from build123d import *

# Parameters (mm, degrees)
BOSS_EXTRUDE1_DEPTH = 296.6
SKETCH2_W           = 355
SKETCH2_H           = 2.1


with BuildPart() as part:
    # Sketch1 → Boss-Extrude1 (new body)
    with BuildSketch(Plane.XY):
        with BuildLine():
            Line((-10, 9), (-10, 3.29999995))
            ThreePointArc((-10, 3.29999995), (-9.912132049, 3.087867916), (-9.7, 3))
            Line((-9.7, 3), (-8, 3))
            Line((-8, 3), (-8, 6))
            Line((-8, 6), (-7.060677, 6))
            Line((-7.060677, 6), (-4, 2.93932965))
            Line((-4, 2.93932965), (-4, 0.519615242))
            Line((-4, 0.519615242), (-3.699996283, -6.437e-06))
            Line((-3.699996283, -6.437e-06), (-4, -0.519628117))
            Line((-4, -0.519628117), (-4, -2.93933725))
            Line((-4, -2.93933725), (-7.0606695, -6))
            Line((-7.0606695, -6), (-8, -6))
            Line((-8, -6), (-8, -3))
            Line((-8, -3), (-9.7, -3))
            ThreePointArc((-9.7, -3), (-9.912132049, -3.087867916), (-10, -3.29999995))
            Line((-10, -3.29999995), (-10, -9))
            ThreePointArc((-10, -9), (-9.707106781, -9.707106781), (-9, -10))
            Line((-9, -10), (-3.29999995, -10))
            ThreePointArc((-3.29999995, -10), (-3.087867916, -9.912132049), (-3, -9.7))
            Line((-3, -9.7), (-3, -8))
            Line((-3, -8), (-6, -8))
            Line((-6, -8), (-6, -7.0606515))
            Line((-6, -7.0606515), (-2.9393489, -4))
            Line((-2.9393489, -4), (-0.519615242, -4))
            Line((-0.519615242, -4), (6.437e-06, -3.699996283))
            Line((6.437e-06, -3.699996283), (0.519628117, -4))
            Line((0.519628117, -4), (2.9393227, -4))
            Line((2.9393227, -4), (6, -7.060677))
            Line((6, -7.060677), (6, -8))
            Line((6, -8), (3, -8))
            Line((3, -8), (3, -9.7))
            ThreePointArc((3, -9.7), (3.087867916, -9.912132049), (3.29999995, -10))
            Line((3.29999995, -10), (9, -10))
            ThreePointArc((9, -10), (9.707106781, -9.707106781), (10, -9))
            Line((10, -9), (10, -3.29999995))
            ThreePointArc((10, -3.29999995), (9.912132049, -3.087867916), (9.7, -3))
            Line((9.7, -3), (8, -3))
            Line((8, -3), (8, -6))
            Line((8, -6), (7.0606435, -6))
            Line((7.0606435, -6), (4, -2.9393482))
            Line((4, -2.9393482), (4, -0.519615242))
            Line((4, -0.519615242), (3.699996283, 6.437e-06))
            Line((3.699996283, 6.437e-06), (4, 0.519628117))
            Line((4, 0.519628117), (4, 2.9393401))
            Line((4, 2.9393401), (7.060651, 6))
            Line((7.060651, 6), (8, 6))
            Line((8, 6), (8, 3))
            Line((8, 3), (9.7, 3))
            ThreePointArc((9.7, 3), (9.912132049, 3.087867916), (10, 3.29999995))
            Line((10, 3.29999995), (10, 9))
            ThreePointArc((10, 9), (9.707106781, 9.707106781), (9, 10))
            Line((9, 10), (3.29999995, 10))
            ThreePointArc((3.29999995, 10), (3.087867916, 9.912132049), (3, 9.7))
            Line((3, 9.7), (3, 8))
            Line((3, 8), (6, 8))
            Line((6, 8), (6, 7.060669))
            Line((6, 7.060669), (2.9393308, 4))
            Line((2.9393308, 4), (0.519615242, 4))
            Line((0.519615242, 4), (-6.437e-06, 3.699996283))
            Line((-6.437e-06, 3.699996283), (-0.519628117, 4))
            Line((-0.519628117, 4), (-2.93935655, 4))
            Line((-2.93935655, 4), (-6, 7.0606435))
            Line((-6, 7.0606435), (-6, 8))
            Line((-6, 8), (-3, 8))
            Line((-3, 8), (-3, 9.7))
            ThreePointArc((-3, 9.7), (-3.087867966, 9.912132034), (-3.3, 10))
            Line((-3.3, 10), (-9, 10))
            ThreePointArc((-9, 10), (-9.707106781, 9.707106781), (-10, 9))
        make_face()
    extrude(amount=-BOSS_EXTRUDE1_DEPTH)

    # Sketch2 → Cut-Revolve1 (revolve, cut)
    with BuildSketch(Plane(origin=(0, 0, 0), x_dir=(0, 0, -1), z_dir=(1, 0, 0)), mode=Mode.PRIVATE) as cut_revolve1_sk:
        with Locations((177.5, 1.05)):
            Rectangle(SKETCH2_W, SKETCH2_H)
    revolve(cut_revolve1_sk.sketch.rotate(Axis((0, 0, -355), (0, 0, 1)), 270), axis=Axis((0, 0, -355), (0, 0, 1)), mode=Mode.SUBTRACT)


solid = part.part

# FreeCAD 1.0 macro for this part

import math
import FreeCAD as App
import Part
import Sketcher
from FreeCAD import Vector
Q = App.Units.Quantity


def add_polygon(sketch, points):
    """Adds a closed chain of lines whose ends are joined by coincident constraints."""
    first, n = sketch.GeometryCount, len(points)
    for a, b in zip(points, points[1:] + points[:1]):
        sketch.addGeometry(Part.LineSegment(App.Vector(*a, 0), App.Vector(*b, 0)), False)
    for i in range(n):
        sketch.addConstraint(Sketcher.Constraint("Coincident", first + i, 2, first + (i + 1) % n, 1))

doc = App.newDocument("Part")
params = doc.addObject("Spreadsheet::Sheet", "Params")
for row, (alias, value) in enumerate([
    ("sketch1_radius", "1 mm"),
    ("sketch1_radius2", "0.3 mm"),
    ("sketch1_width", "3 mm"),
    ("sketch1_width2", "1.7 mm"),
    ("sketch1_width3", "5.7 mm"),
    ("pad1_length", "296.6 mm"),
    ("sketch2_height", "355 mm"),
    ("sketch2_width", "2.1 mm"),
    ("groove_angle", "360 deg"),
], start=1):
    params.set(f"A{row}", alias)
    params.set(f"B{row}", "=" + value)
    params.setAlias(f"B{row}", alias)

body = doc.addObject("PartDesign::Body", "Body")

sketch1 = body.newObject("Sketcher::SketchObject", "Sketch")
sketch1.AttachmentSupport = (doc.getObject("XY_Plane"), [""])
sketch1.MapMode = "FlatFace"
sketch1.addGeometry([
    Part.LineSegment(Vector(-10, 9, 0), Vector(-10, 3.3, 0)),
    Part.ArcOfCircle(Part.Circle(Vector(-9.7, 3.3, 0), Vector(0, 0, 1), 0.3), math.radians(180), math.radians(270)),
    Part.LineSegment(Vector(-9.7, 3, 0), Vector(-8, 3, 0)),
    Part.LineSegment(Vector(-8, 3, 0), Vector(-8, 6, 0)),
    Part.LineSegment(Vector(-8, 6, 0), Vector(-7.06, 6, 0)),
    Part.LineSegment(Vector(-7.06, 6, 0), Vector(-4, 2.94, 0)),
    Part.LineSegment(Vector(-4, 2.94, 0), Vector(-4, 0.52, 0)),
    Part.LineSegment(Vector(-4, 0.52, 0), Vector(-3.7, 0, 0)),
    Part.LineSegment(Vector(-3.7, 0, 0), Vector(-4, -0.52, 0)),
    Part.LineSegment(Vector(-4, -0.52, 0), Vector(-4, -2.94, 0)),
    Part.LineSegment(Vector(-4, -2.94, 0), Vector(-7.06, -6, 0)),
    Part.LineSegment(Vector(-7.06, -6, 0), Vector(-8, -6, 0)),
    Part.LineSegment(Vector(-8, -6, 0), Vector(-8, -3, 0)),
    Part.LineSegment(Vector(-8, -3, 0), Vector(-9.7, -3, 0)),
    Part.ArcOfCircle(Part.Circle(Vector(-9.7, -3.3, 0), Vector(0, 0, 1), 0.3), math.radians(90), math.radians(180)),
    Part.LineSegment(Vector(-10, -3.3, 0), Vector(-10, -9, 0)),
    Part.ArcOfCircle(Part.Circle(Vector(-9, -9, 0), Vector(0, 0, 1), 1), math.radians(-180), math.radians(-90)),
    Part.LineSegment(Vector(-9, -10, 0), Vector(-3.3, -10, 0)),
    Part.ArcOfCircle(Part.Circle(Vector(-3.3, -9.7, 0), Vector(0, 0, 1), 0.3), math.radians(-90), math.radians(0)),
    Part.LineSegment(Vector(-3, -9.7, 0), Vector(-3, -8, 0)),
    Part.LineSegment(Vector(-3, -8, 0), Vector(-6, -8, 0)),
    Part.LineSegment(Vector(-6, -8, 0), Vector(-6, -7.06, 0)),
    Part.LineSegment(Vector(-6, -7.06, 0), Vector(-2.94, -4, 0)),
    Part.LineSegment(Vector(-2.94, -4, 0), Vector(-0.52, -4, 0)),
    Part.LineSegment(Vector(-0.52, -4, 0), Vector(0, -3.7, 0)),
    Part.LineSegment(Vector(0, -3.7, 0), Vector(0.52, -4, 0)),
    Part.LineSegment(Vector(0.52, -4, 0), Vector(2.94, -4, 0)),
    Part.LineSegment(Vector(2.94, -4, 0), Vector(6, -7.06, 0)),
    Part.LineSegment(Vector(6, -7.06, 0), Vector(6, -8, 0)),
    Part.LineSegment(Vector(6, -8, 0), Vector(3, -8, 0)),
    Part.LineSegment(Vector(3, -8, 0), Vector(3, -9.7, 0)),
    Part.ArcOfCircle(Part.Circle(Vector(3.3, -9.7, 0), Vector(0, 0, 1), 0.3), math.radians(180), math.radians(270)),
    Part.LineSegment(Vector(3.3, -10, 0), Vector(9, -10, 0)),
    Part.ArcOfCircle(Part.Circle(Vector(9, -9, 0), Vector(0, 0, 1), 1), math.radians(-90), math.radians(0)),
    Part.LineSegment(Vector(10, -9, 0), Vector(10, -3.3, 0)),
    Part.ArcOfCircle(Part.Circle(Vector(9.7, -3.3, 0), Vector(0, 0, 1), 0.3), math.radians(0), math.radians(90)),
    Part.LineSegment(Vector(9.7, -3, 0), Vector(8, -3, 0)),
    Part.LineSegment(Vector(8, -3, 0), Vector(8, -6, 0)),
    Part.LineSegment(Vector(8, -6, 0), Vector(7.06, -6, 0)),
    Part.LineSegment(Vector(7.06, -6, 0), Vector(4, -2.94, 0)),
    Part.LineSegment(Vector(4, -2.94, 0), Vector(4, -0.52, 0)),
    Part.LineSegment(Vector(4, -0.52, 0), Vector(3.7, 0, 0)),
    Part.LineSegment(Vector(3.7, 0, 0), Vector(4, 0.52, 0)),
    Part.LineSegment(Vector(4, 0.52, 0), Vector(4, 2.94, 0)),
    Part.LineSegment(Vector(4, 2.94, 0), Vector(7.06, 6, 0)),
    Part.LineSegment(Vector(7.06, 6, 0), Vector(8, 6, 0)),
    Part.LineSegment(Vector(8, 6, 0), Vector(8, 3, 0)),
    Part.LineSegment(Vector(8, 3, 0), Vector(9.7, 3, 0)),
    Part.ArcOfCircle(Part.Circle(Vector(9.7, 3.3, 0), Vector(0, 0, 1), 0.3), math.radians(-90), math.radians(0)),
    Part.LineSegment(Vector(10, 3.3, 0), Vector(10, 9, 0)),
    Part.ArcOfCircle(Part.Circle(Vector(9, 9, 0), Vector(0, 0, 1), 1), math.radians(0), math.radians(90)),
    Part.LineSegment(Vector(9, 10, 0), Vector(3.3, 10, 0)),
    Part.ArcOfCircle(Part.Circle(Vector(3.3, 9.7, 0), Vector(0, 0, 1), 0.3), math.radians(90), math.radians(180)),
    Part.LineSegment(Vector(3, 9.7, 0), Vector(3, 8, 0)),
    Part.LineSegment(Vector(3, 8, 0), Vector(6, 8, 0)),
    Part.LineSegment(Vector(6, 8, 0), Vector(6, 7.06, 0)),
    Part.LineSegment(Vector(6, 7.06, 0), Vector(2.94, 4, 0)),
    Part.LineSegment(Vector(2.94, 4, 0), Vector(0.52, 4, 0)),
    Part.LineSegment(Vector(0.52, 4, 0), Vector(0, 3.7, 0)),
    Part.LineSegment(Vector(0, 3.7, 0), Vector(-0.52, 4, 0)),
    Part.LineSegment(Vector(-0.52, 4, 0), Vector(-2.94, 4, 0)),
    Part.LineSegment(Vector(-2.94, 4, 0), Vector(-6, 7.06, 0)),
    Part.LineSegment(Vector(-6, 7.06, 0), Vector(-6, 8, 0)),
    Part.LineSegment(Vector(-6, 8, 0), Vector(-3, 8, 0)),
    Part.LineSegment(Vector(-3, 8, 0), Vector(-3, 9.7, 0)),
    Part.ArcOfCircle(Part.Circle(Vector(-3.3, 9.7, 0), Vector(0, 0, 1), 0.3), math.radians(0), math.radians(90)),
    Part.LineSegment(Vector(-3.3, 10, 0), Vector(-9, 10, 0)),
    Part.ArcOfCircle(Part.Circle(Vector(-9, 9, 0), Vector(0, 0, 1), 1), math.radians(90), math.radians(180)),
], False)
sketch1.addConstraint([
    Sketcher.Constraint("Tangent", 0, 2, 1, 1),
    Sketcher.Constraint("Tangent", 1, 2, 2, 1),
    Sketcher.Constraint("Coincident", 2, 2, 3, 1),
    Sketcher.Constraint("Coincident", 3, 2, 4, 1),
    Sketcher.Constraint("Coincident", 4, 2, 5, 1),
    Sketcher.Constraint("Coincident", 5, 2, 6, 1),
    Sketcher.Constraint("Coincident", 6, 2, 7, 1),
    Sketcher.Constraint("Coincident", 7, 2, 8, 1),
    Sketcher.Constraint("Coincident", 8, 2, 9, 1),
    Sketcher.Constraint("Coincident", 9, 2, 10, 1),
    Sketcher.Constraint("Coincident", 10, 2, 11, 1),
    Sketcher.Constraint("Coincident", 11, 2, 12, 1),
    Sketcher.Constraint("Coincident", 12, 2, 13, 1),
    Sketcher.Constraint("Tangent", 13, 2, 14, 1),
    Sketcher.Constraint("Tangent", 14, 2, 15, 1),
    Sketcher.Constraint("Tangent", 15, 2, 16, 1),
    Sketcher.Constraint("Tangent", 16, 2, 17, 1),
    Sketcher.Constraint("Tangent", 17, 2, 18, 1),
    Sketcher.Constraint("Tangent", 18, 2, 19, 1),
    Sketcher.Constraint("Coincident", 19, 2, 20, 1),
    Sketcher.Constraint("Coincident", 20, 2, 21, 1),
    Sketcher.Constraint("Coincident", 21, 2, 22, 1),
    Sketcher.Constraint("Coincident", 22, 2, 23, 1),
    Sketcher.Constraint("Coincident", 23, 2, 24, 1),
    Sketcher.Constraint("Coincident", 24, 2, 25, 1),
    Sketcher.Constraint("Coincident", 25, 2, 26, 1),
    Sketcher.Constraint("Coincident", 26, 2, 27, 1),
    Sketcher.Constraint("Coincident", 27, 2, 28, 1),
    Sketcher.Constraint("Coincident", 28, 2, 29, 1),
    Sketcher.Constraint("Coincident", 29, 2, 30, 1),
    Sketcher.Constraint("Tangent", 30, 2, 31, 1),
    Sketcher.Constraint("Tangent", 31, 2, 32, 1),
    Sketcher.Constraint("Tangent", 32, 2, 33, 1),
    Sketcher.Constraint("Tangent", 33, 2, 34, 1),
    Sketcher.Constraint("Tangent", 34, 2, 35, 1),
    Sketcher.Constraint("Tangent", 35, 2, 36, 1),
    Sketcher.Constraint("Coincident", 36, 2, 37, 1),
    Sketcher.Constraint("Coincident", 37, 2, 38, 1),
    Sketcher.Constraint("Coincident", 38, 2, 39, 1),
    Sketcher.Constraint("Coincident", 39, 2, 40, 1),
    Sketcher.Constraint("Coincident", 40, 2, 41, 1),
    Sketcher.Constraint("Coincident", 41, 2, 42, 1),
    Sketcher.Constraint("Coincident", 42, 2, 43, 1),
    Sketcher.Constraint("Coincident", 43, 2, 44, 1),
    Sketcher.Constraint("Coincident", 44, 2, 45, 1),
    Sketcher.Constraint("Coincident", 45, 2, 46, 1),
    Sketcher.Constraint("Coincident", 46, 2, 47, 1),
    Sketcher.Constraint("Tangent", 47, 2, 48, 1),
    Sketcher.Constraint("Tangent", 48, 2, 49, 1),
    Sketcher.Constraint("Tangent", 49, 2, 50, 1),
    Sketcher.Constraint("Tangent", 50, 2, 51, 1),
    Sketcher.Constraint("Tangent", 51, 2, 52, 1),
    Sketcher.Constraint("Tangent", 52, 2, 53, 1),
    Sketcher.Constraint("Coincident", 53, 2, 54, 1),
    Sketcher.Constraint("Coincident", 54, 2, 55, 1),
    Sketcher.Constraint("Coincident", 55, 2, 56, 1),
    Sketcher.Constraint("Coincident", 56, 2, 57, 1),
    Sketcher.Constraint("Coincident", 57, 2, 58, 1),
    Sketcher.Constraint("Coincident", 58, 2, 59, 1),
    Sketcher.Constraint("Coincident", 59, 2, 60, 1),
    Sketcher.Constraint("Coincident", 60, 2, 61, 1),
    Sketcher.Constraint("Coincident", 61, 2, 62, 1),
    Sketcher.Constraint("Coincident", 62, 2, 63, 1),
    Sketcher.Constraint("Coincident", 63, 2, 64, 1),
    Sketcher.Constraint("Tangent", 64, 2, 65, 1),
    Sketcher.Constraint("Tangent", 65, 2, 66, 1),
    Sketcher.Constraint("Tangent", 66, 2, 67, 1),
    Sketcher.Constraint("Tangent", 67, 2, 0, 1),
    Sketcher.Constraint("Vertical", 0),
    Sketcher.Constraint("Horizontal", 2),
    Sketcher.Constraint("Vertical", 3),
    Sketcher.Constraint("Horizontal", 4),
    Sketcher.Constraint("Vertical", 6),
    Sketcher.Constraint("Vertical", 9),
    Sketcher.Constraint("Horizontal", 11),
    Sketcher.Constraint("Vertical", 12),
    Sketcher.Constraint("Horizontal", 13),
    Sketcher.Constraint("Vertical", 15),
    Sketcher.Constraint("Horizontal", 17),
    Sketcher.Constraint("Vertical", 19),
    Sketcher.Constraint("Horizontal", 20),
    Sketcher.Constraint("Vertical", 21),
    Sketcher.Constraint("Horizontal", 23),
    Sketcher.Constraint("Horizontal", 26),
    Sketcher.Constraint("Vertical", 28),
    Sketcher.Constraint("Horizontal", 29),
    Sketcher.Constraint("Vertical", 30),
    Sketcher.Constraint("Horizontal", 32),
    Sketcher.Constraint("Vertical", 34),
    Sketcher.Constraint("Horizontal", 36),
    Sketcher.Constraint("Vertical", 37),
    Sketcher.Constraint("Horizontal", 38),
    Sketcher.Constraint("Vertical", 40),
    Sketcher.Constraint("Vertical", 43),
    Sketcher.Constraint("Horizontal", 45),
    Sketcher.Constraint("Vertical", 46),
    Sketcher.Constraint("Horizontal", 47),
    Sketcher.Constraint("Vertical", 49),
    Sketcher.Constraint("Horizontal", 51),
    Sketcher.Constraint("Vertical", 53),
    Sketcher.Constraint("Horizontal", 54),
    Sketcher.Constraint("Vertical", 55),
    Sketcher.Constraint("Horizontal", 57),
    Sketcher.Constraint("Horizontal", 60),
    Sketcher.Constraint("Vertical", 62),
    Sketcher.Constraint("Horizontal", 63),
    Sketcher.Constraint("Vertical", 64),
    Sketcher.Constraint("Horizontal", 66),
    Sketcher.Constraint("Equal", 1, 14),
    Sketcher.Constraint("Equal", 14, 18),
    Sketcher.Constraint("Equal", 18, 31),
    Sketcher.Constraint("Equal", 16, 33),
    Sketcher.Constraint("Equal", 31, 35),
    Sketcher.Constraint("Equal", 35, 48),
    Sketcher.Constraint("Equal", 33, 50),
    Sketcher.Constraint("Equal", 48, 52),
    Sketcher.Constraint("Equal", 52, 65),
    Sketcher.Constraint("Equal", 50, 67),
    Sketcher.Constraint("Symmetric", 1, 3, 35, 3, -1, 1),
    Sketcher.Constraint("Symmetric", 14, 3, 48, 3, -1, 1),
    Sketcher.Constraint("Symmetric", 18, 3, 52, 3, -1, 1),
    Sketcher.Constraint("Symmetric", 31, 3, 65, 3, -1, 1),
    Sketcher.Constraint("Symmetric", 3, 2, 37, 2, -1, 1),
    Sketcher.Constraint("Symmetric", 6, 2, 40, 2, -1, 1),
    Sketcher.Constraint("Symmetric", 7, 2, 41, 2, -1, 1),
    Sketcher.Constraint("Symmetric", 8, 2, 42, 2, -1, 1),
    Sketcher.Constraint("Symmetric", 11, 2, 45, 2, -1, 1),
    Sketcher.Constraint("Symmetric", 20, 2, 54, 2, -1, 1),
    Sketcher.Constraint("Symmetric", 23, 2, 57, 2, -1, 1),
    Sketcher.Constraint("Symmetric", 24, 2, 58, 2, -1, 1),
    Sketcher.Constraint("Symmetric", 25, 2, 59, 2, -1, 1),
    Sketcher.Constraint("Symmetric", 28, 2, 62, 2, -1, 1),
    Sketcher.Constraint("Symmetric", 18, 3, 31, 3, -2),
    Sketcher.Constraint("Symmetric", 14, 3, 35, 3, -2),
    Sketcher.Constraint("Symmetric", 20, 2, 28, 2, -2),
    Sketcher.Constraint("Symmetric", 11, 2, 37, 2, -2),
    Sketcher.Constraint("Symmetric", 5, 2, 9, 2, -1),
    Sketcher.Constraint("Symmetric", 26, 2, 56, 2, -1),
    Sketcher.Constraint("Parallel", 10, 22),
    Sketcher.Constraint("Perpendicular", 7, 24),
    Sketcher.Constraint("Perpendicular", 8, 25),
    Sketcher.Constraint("Perpendicular", 22, 27),
    Sketcher.Constraint("Parallel", 27, 39),
    Sketcher.Constraint("Perpendicular", 27, 44),
    Sketcher.Constraint("Parallel", 44, 56),
    Sketcher.Constraint("Perpendicular", 56, 61),
    Sketcher.Constraint("Equal", 66, 0),
    Sketcher.Constraint("Equal", 63, 3),
    Sketcher.Constraint("Equal", 57, 6),
    Sketcher.Constraint("Equal", 47, 19),
    Sketcher.Constraint("Equal", 45, 21),
    Sketcher.Constraint("Equal", 4, 28),
    Sketcher.Constraint("Equal", 23, 40),
    Sketcher.Constraint("Equal", 11, 55),
    Sketcher.Constraint("Equal", 38, 62),
    Sketcher.Constraint("Equal", 7, 8),
    Sketcher.Constraint("Equal", 8, 24),
    Sketcher.Constraint("Radius", 16, Q("1 mm")),
    Sketcher.Constraint("Radius", 1, Q("0.3 mm")),
    Sketcher.Constraint("DistanceX", 20, 2, 20, 1, Q("3 mm")),
    Sketcher.Constraint("Angle", 7, Q("-60 deg")),
    Sketcher.Constraint("Angle", 22, Q("45.000004 deg")),
    Sketcher.Constraint("DistanceX", 2, 1, 2, 2, Q("1.7 mm")),
    Sketcher.Constraint("DistanceX", 17, 1, 17, 2, Q("5.7 mm")),
    Sketcher.Constraint("DistanceX", 16, 3, -1, 1, Q("9 mm")),
    Sketcher.Constraint("DistanceY", 16, 3, -1, 1, Q("9 mm")),
    Sketcher.Constraint("DistanceX", 5, 2, -1, 1, Q("4 mm")),
    Sketcher.Constraint("DistanceY", 22, 2, -1, 1, Q("4 mm")),
    Sketcher.Constraint("DistanceX", 11, 2, 11, 1, Q("0.93933 mm")),
    Sketcher.Constraint("DistanceX", 45, 1, 45, 2, Q("0.939349 mm")),
    Sketcher.Constraint("DistanceX", 60, 2, 60, 1, Q("2.419728 mm")),
    Sketcher.Constraint("DistanceX", 23, 1, 23, 2, Q("2.419734 mm")),
])
sketch1.setExpression("Constraints[157]", "Params.sketch1_radius")
sketch1.setExpression("Constraints[158]", "Params.sketch1_radius2")
sketch1.setExpression("Constraints[159]", "Params.sketch1_width")
sketch1.setExpression("Constraints[162]", "Params.sketch1_width2")
sketch1.setExpression("Constraints[163]", "Params.sketch1_width3")
pad1 = body.newObject("PartDesign::Pad", "Pad")
pad1.Profile = sketch1
pad1.setExpression("Length", "Params.pad1_length")
pad1.Reversed = True

sketch2 = body.newObject("Sketcher::SketchObject", "Sketch001")
sketch2.AttachmentSupport = (doc.getObject("YZ_Plane"), [""])
sketch2.MapMode = "FlatFace"
add_polygon(sketch2, [(2.1, 0), (0, 0), (0, -355), (2.1, -355)])
sketch2.addConstraint([
    Sketcher.Constraint("Horizontal", 0),
    Sketcher.Constraint("Vertical", 1),
    Sketcher.Constraint("Horizontal", 2),
    Sketcher.Constraint("Vertical", 3),
    Sketcher.Constraint("Coincident", 0, 2, -1, 1),
    Sketcher.Constraint("DistanceY", 1, 2, 1, 1, Q("355 mm")),
    Sketcher.Constraint("DistanceX", 0, 2, 0, 1, Q("2.1 mm")),
])
sketch2.setExpression("Constraints[9]", "Params.sketch2_height")
sketch2.setExpression("Constraints[10]", "Params.sketch2_width")
groove = body.newObject("PartDesign::Groove", "Groove")
groove.Profile = sketch2
groove.ReferenceAxis = (sketch2, ["V_Axis"])
groove.setExpression("Angle", "Params.groove_angle")

doc.recompute()
